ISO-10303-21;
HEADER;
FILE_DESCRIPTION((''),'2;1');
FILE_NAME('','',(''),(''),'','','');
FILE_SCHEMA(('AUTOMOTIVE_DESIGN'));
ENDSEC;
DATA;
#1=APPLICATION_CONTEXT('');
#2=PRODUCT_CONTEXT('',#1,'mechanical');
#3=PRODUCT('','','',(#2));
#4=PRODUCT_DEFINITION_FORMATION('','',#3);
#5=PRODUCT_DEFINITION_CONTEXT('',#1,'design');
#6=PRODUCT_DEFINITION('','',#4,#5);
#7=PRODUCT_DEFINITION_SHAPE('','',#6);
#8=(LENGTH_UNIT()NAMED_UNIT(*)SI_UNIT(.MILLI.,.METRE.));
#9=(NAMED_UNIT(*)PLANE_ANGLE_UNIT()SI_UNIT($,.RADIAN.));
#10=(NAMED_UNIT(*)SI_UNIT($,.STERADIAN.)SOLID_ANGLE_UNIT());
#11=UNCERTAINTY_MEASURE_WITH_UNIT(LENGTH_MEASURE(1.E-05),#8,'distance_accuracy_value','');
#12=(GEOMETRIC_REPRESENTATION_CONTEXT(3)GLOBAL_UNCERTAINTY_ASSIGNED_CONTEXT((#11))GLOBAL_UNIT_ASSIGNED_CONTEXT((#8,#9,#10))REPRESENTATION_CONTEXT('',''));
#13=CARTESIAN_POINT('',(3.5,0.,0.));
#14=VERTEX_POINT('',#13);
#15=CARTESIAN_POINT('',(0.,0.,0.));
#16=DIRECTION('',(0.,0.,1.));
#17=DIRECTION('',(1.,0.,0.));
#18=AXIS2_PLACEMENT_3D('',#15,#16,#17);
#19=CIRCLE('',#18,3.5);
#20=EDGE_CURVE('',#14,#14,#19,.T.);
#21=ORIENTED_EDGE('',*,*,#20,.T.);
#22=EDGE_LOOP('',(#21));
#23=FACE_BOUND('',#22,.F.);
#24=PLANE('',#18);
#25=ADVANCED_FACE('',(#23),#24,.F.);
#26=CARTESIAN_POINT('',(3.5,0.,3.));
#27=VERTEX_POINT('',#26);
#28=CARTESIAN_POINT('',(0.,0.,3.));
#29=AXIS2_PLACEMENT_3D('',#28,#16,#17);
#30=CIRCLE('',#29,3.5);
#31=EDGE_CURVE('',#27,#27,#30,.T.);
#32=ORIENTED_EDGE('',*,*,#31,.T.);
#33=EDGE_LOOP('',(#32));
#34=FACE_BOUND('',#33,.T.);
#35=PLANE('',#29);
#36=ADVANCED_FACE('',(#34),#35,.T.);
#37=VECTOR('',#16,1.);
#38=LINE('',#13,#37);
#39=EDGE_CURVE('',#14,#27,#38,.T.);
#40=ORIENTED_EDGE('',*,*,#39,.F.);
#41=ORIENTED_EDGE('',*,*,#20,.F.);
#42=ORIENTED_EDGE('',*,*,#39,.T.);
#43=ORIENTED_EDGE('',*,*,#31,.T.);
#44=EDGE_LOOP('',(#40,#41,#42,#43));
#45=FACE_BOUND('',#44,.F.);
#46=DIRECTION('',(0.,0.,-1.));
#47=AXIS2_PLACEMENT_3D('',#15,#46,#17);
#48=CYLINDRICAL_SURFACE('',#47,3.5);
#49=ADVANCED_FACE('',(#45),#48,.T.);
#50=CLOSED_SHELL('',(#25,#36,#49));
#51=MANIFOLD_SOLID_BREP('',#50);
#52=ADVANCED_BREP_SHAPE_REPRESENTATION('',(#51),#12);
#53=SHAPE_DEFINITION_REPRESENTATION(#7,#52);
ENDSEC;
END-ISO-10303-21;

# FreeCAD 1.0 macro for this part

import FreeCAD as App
import Part
import Sketcher

V = App.Vector

doc = App.newDocument("Part")
body = doc.addObject("PartDesign::Body", "Body")

# Sketch on XY plane
sketch1 = doc.addObject("Sketcher::SketchObject", "Sketch")
body.addObject(sketch1)
sketch1.AttachmentSupport = (doc.XY_Plane, [""])
sketch1.MapMode = "FlatFace"
sketch1.addGeometry(Part.Circle(V(0, 0, 0), V(0, 0, 1), 3.5), False)
sketch1.addConstraint([
    Sketcher.Constraint("Coincident", 0, 3, -1, 1),
    Sketcher.Constraint("Diameter", 0, 7.0),
])
pad1 = doc.addObject("PartDesign::Pad", "Pad")
body.addObject(pad1)
pad1.Profile = sketch1
pad1.Length = 3

doc.recompute()
